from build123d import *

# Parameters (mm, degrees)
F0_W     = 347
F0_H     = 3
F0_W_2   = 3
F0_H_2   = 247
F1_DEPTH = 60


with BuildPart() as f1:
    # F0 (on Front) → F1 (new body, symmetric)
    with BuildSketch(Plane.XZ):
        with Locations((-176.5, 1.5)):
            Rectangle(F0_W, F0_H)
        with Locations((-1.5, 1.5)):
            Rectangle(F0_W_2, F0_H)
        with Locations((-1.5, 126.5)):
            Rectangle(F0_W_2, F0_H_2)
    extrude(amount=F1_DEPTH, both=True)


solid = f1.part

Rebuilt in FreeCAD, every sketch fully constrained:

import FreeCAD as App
import Part
import Sketcher
from FreeCAD import Vector

doc = App.newDocument("Part")
body = doc.addObject("PartDesign::Body", "Body")

# Sketch on XZ plane
sketch1 = doc.addObject("Sketcher::SketchObject", "Sketch")
body.addObject(sketch1)
sketch1.AttachmentSupport = (doc.XZ_Plane, [""])
sketch1.MapMode = "FlatFace"
sketch1.addGeometry([
    Part.LineSegment(Vector(-350, 3, 0), Vector(-350, 0, 0)),  # 0
    Part.LineSegment(Vector(-350, 0, 0), Vector(0, 0, 0)),  # 1
    Part.LineSegment(Vector(0, 0, 0), Vector(0, 250, 0)),  # 2
    Part.LineSegment(Vector(0, 250, 0), Vector(-3, 250, 0)),  # 3
    Part.LineSegment(Vector(-3, 250, 0), Vector(-3, 3, 0)),  # 4
    Part.LineSegment(Vector(-3, 3, 0), Vector(-350, 3, 0)),  # 5
], False)
sketch1.addConstraint([
    Sketcher.Constraint("Coincident", 0, 2, 1, 1),
    Sketcher.Constraint("Coincident", 1, 2, 2, 1),
    Sketcher.Constraint("Coincident", 2, 2, 3, 1),
    Sketcher.Constraint("Coincident", 3, 2, 4, 1),
    Sketcher.Constraint("Coincident", 4, 2, 5, 1),
    Sketcher.Constraint("Coincident", 5, 2, 0, 1),
    Sketcher.Constraint("Vertical", 0),
    Sketcher.Constraint("Horizontal", 1),
    Sketcher.Constraint("Vertical", 2),
    Sketcher.Constraint("Horizontal", 3),
    Sketcher.Constraint("Vertical", 4),
    Sketcher.Constraint("Horizontal", 5),
    Sketcher.Constraint("Coincident", 1, 2, -1, 1),
    Sketcher.Constraint("Equal", 3, 0),
    Sketcher.Constraint("DistanceX", 1, 1, 1, 2, 350.0),
    Sketcher.Constraint("DistanceX", 3, 2, 3, 1, 3.0),
    Sketcher.Constraint("DistanceY", 2, 1, 2, 2, 250.0),
])
pad1 = doc.addObject("PartDesign::Pad", "Pad")
body.addObject(pad1)
pad1.Profile = sketch1
pad1.Length = 120
pad1.Midplane = True

doc.recompute()
